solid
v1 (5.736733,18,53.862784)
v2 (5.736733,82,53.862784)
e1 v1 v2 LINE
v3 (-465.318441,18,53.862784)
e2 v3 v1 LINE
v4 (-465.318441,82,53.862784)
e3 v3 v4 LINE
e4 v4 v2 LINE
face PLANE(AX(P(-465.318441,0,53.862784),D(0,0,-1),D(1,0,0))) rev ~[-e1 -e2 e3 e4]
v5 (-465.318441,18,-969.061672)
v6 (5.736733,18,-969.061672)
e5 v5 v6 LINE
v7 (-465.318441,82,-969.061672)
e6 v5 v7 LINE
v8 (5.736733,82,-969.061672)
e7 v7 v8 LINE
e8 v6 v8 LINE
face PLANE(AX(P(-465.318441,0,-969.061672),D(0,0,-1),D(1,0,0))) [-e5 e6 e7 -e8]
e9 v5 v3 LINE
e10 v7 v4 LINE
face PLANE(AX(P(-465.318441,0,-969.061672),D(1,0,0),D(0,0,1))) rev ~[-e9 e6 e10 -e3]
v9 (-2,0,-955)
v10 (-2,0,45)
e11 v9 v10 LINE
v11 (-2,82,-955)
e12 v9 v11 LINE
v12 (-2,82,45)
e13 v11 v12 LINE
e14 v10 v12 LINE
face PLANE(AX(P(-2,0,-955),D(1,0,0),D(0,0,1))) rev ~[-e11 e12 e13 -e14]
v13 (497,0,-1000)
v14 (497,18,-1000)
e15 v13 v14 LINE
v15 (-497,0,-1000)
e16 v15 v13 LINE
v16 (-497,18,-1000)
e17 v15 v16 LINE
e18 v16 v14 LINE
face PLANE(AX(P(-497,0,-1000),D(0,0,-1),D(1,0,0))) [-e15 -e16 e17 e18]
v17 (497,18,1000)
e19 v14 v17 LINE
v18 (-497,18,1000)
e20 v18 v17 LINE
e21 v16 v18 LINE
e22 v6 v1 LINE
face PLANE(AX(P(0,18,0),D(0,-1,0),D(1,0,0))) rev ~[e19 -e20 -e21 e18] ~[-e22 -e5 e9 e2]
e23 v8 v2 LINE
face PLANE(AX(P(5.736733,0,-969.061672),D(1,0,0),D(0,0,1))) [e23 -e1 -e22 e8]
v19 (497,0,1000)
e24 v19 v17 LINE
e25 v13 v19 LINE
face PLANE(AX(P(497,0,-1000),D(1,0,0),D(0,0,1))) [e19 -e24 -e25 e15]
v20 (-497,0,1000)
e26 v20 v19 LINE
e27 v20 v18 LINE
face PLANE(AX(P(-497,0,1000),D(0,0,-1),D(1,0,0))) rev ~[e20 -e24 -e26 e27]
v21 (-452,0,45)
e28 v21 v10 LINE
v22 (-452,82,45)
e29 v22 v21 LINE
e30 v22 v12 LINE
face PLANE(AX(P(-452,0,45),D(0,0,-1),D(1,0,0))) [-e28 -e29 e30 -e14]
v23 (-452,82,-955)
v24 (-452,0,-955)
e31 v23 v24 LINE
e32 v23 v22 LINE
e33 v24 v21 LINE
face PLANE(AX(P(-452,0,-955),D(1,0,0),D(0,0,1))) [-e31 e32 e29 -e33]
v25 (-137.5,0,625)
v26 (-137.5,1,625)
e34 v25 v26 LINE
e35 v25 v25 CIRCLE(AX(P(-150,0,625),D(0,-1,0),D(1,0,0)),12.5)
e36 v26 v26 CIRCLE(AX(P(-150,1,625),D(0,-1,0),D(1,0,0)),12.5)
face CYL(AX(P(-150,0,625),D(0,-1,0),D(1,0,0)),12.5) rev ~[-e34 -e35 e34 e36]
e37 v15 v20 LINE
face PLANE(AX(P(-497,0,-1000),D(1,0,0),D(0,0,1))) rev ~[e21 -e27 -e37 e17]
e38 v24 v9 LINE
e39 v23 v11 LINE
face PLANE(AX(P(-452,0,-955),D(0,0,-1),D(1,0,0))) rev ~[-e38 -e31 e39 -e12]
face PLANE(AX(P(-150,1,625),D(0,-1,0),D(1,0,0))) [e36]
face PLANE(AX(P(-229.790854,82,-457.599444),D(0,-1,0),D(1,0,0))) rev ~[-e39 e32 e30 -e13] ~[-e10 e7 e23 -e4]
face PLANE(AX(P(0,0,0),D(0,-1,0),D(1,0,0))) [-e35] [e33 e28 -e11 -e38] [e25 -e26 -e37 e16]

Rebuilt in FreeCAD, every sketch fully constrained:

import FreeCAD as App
import Part
import Sketcher
Q = App.Units.Quantity


def add_polygon(sketch, points):
    """Adds a closed chain of lines whose ends are joined by coincident constraints."""
    first, n = sketch.GeometryCount, len(points)
    for a, b in zip(points, points[1:] + points[:1]):
        sketch.addGeometry(Part.LineSegment(App.Vector(*a, 0), App.Vector(*b, 0)), False)
    for i in range(n):
        sketch.addConstraint(Sketcher.Constraint("Coincident", first + i, 2, first + (i + 1) % n, 1))

doc = App.newDocument("Part")
body = doc.addObject("PartDesign::Body", "Body")

# Sketch on XZ plane
sketch1 = doc.addObject("Sketcher::SketchObject", "Sketch")
body.addObject(sketch1)
sketch1.AttachmentSupport = (doc.XZ_Plane, [""])
sketch1.MapMode = "FlatFace"
add_polygon(sketch1, [(-497, 1000), (-497, -1000), (497, -1000), (497, 1000)])  # lines 0-3
sketch1.addConstraint([
    Sketcher.Constraint("Vertical", 0),
    Sketcher.Constraint("Horizontal", 1),
    Sketcher.Constraint("Vertical", 2),
    Sketcher.Constraint("Horizontal", 3),
    Sketcher.Constraint("Symmetric", 0, 2, 2, 2, -1, 1),
    Sketcher.Constraint("DistanceX", 1, 1, 1, 2, Q("994 mm")),
    Sketcher.Constraint("DistanceY", 0, 2, 0, 1, Q("2000 mm")),
])
pad1 = doc.addObject("PartDesign::Pad", "Pad")
body.addObject(pad1)
pad1.Profile = sketch1
pad1.Length = 18
pad1.Reversed = True

# Sketch on XZ plane
sketch2 = doc.addObject("Sketcher::SketchObject", "Sketch001")
body.addObject(sketch2)
sketch2.AttachmentSupport = (doc.XZ_Plane, [""])
sketch2.MapMode = "FlatFace"
sketch2.addGeometry(Part.Circle(App.Vector(-150, 625, 0), App.Vector(0, 0, 1), 12), False)
sketch2.addConstraint([
    Sketcher.Constraint("Diameter", 0, Q("25 mm")),
    Sketcher.Constraint("DistanceX", 0, 3, -1, 1, Q("150 mm")),
    Sketcher.Constraint("DistanceY", -1, 1, 0, 3, Q("625 mm")),
])
pocket1 = doc.addObject("PartDesign::Pocket", "Pocket")
body.addObject(pocket1)
pocket1.Profile = sketch2
pocket1.Length = 1

# Sketch on XZ plane
sketch3 = doc.addObject("Sketcher::SketchObject", "Sketch002")
body.addObject(sketch3)
sketch3.AttachmentSupport = (doc.XZ_Plane, [""])
sketch3.MapMode = "FlatFace"
add_polygon(sketch3, [(-452, 45), (-452, -955), (-2, -955), (-2, 45)])  # lines 0-3
sketch3.addConstraint([
    Sketcher.Constraint("Vertical", 0),
    Sketcher.Constraint("Horizontal", 1),
    Sketcher.Constraint("Vertical", 2),
    Sketcher.Constraint("Horizontal", 3),
    Sketcher.Constraint("DistanceX", 1, 1, 1, 2, Q("450 mm")),
    Sketcher.Constraint("DistanceY", 0, 2, 0, 1, Q("1000 mm")),
    Sketcher.Constraint("DistanceX", 0, 2, -1, 1, Q("452 mm")),
    Sketcher.Constraint("DistanceY", 0, 2, -1, 1, Q("955 mm")),
])
pocket2 = doc.addObject("PartDesign::Pocket", "Pocket001")
body.addObject(pocket2)
pocket2.Profile = sketch3
pocket2.Length = 82

# Sketch on XZ plane
sketch4 = doc.addObject("Sketcher::SketchObject", "Sketch003")
body.addObject(sketch4)
sketch4.AttachmentSupport = (doc.XZ_Plane, [""])
sketch4.MapMode = "FlatFace"
add_polygon(sketch4, [(-465, 54), (-465, -969), (6, -969), (6, 54)])  # lines 0-3
add_polygon(sketch4, [(-2, -955), (-452, -955), (-452, 45), (-2, 45)])  # lines 4-7
sketch4.addConstraint([
    Sketcher.Constraint("Vertical", 0),
    Sketcher.Constraint("Horizontal", 1),
    Sketcher.Constraint("Vertical", 2),
    Sketcher.Constraint("Horizontal", 3),
    Sketcher.Constraint("Horizontal", 4),
    Sketcher.Constraint("Vertical", 5),
    Sketcher.Constraint("Horizontal", 6),
    Sketcher.Constraint("Vertical", 7),
    Sketcher.Constraint("DistanceX", 4, 2, 4, 1, Q("450 mm")),
    Sketcher.Constraint("DistanceY", 5, 1, 5, 2, Q("1000 mm")),
    Sketcher.Constraint("DistanceX", 4, 2, -1, 1, Q("452 mm")),
    Sketcher.Constraint("DistanceY", 4, 2, -1, 1, Q("955 mm")),
    Sketcher.Constraint("DistanceX", 1, 1, 1, 2, Q("471.055174 mm")),
    Sketcher.Constraint("DistanceY", 0, 2, 0, 1, Q("1022.924457 mm")),
    Sketcher.Constraint("DistanceX", 0, 2, -1, 1, Q("465.318441 mm")),
    Sketcher.Constraint("DistanceY", 0, 2, -1, 1, Q("969.061672 mm")),
])
pad2 = doc.addObject("PartDesign::Pad", "Pad001")
body.addObject(pad2)
pad2.Profile = sketch4
pad2.Length = 82
pad2.Reversed = True

doc.recompute()
